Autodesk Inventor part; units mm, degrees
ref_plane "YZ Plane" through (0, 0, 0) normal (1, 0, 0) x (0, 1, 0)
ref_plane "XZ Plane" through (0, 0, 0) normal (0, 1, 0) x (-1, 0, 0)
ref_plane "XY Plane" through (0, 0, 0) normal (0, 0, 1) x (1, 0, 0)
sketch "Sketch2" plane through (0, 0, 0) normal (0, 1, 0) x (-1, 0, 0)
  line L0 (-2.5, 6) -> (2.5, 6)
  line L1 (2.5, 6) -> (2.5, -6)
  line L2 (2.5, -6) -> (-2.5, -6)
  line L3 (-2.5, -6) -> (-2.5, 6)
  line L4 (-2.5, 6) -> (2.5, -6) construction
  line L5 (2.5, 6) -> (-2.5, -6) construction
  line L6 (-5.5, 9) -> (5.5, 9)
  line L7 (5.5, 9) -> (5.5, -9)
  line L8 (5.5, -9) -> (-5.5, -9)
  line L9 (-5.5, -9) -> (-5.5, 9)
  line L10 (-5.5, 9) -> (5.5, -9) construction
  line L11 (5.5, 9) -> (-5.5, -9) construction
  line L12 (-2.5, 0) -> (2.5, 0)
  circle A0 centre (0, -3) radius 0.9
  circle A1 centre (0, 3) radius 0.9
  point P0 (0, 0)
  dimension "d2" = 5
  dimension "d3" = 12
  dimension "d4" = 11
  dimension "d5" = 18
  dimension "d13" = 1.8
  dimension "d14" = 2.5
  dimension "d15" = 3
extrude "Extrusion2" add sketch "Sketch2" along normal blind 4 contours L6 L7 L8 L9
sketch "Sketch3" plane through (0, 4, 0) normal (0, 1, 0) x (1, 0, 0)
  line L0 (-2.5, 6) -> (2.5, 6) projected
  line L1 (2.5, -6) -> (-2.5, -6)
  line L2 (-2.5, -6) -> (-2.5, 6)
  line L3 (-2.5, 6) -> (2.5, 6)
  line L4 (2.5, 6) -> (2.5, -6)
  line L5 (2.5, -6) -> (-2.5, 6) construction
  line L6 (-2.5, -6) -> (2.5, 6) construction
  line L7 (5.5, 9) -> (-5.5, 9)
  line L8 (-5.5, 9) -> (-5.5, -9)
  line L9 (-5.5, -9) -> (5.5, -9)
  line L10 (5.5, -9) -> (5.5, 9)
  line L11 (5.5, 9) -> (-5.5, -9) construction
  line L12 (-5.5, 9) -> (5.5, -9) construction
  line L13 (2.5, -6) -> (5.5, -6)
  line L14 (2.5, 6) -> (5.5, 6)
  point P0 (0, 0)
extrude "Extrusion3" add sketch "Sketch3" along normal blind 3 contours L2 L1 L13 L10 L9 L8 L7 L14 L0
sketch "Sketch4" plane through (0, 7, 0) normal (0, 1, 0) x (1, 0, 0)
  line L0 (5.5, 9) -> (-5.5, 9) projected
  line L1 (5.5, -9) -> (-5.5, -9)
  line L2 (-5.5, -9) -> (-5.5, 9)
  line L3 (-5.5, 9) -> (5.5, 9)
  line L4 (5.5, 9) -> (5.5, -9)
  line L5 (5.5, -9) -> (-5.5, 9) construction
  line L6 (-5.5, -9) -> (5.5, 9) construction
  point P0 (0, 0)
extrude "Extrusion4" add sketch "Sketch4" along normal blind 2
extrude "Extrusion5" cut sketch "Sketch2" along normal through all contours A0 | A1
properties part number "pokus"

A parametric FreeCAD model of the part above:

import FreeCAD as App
import Part
import Sketcher


def add_polygon(sketch, points):
    """Adds a closed chain of lines whose ends are joined by coincident constraints."""
    first, n = sketch.GeometryCount, len(points)
    for a, b in zip(points, points[1:] + points[:1]):
        sketch.addGeometry(Part.LineSegment(App.Vector(*a, 0), App.Vector(*b, 0)), False)
    for i in range(n):
        sketch.addConstraint(Sketcher.Constraint("Coincident", first + i, 2, first + (i + 1) % n, 1))

doc = App.newDocument("Part")
params = doc.addObject("Spreadsheet::Sheet", "Params")
for row, (alias, value) in enumerate([
    ("sketch1_width", "11 mm"),
    ("sketch1_width2", "5 mm"),
    ("sketch1_height", "18 mm"),
    ("sketch1_height2", "12 mm"),
    ("pad1_length", "4 mm"),
    ("sketch2_width", "8 mm"),
    ("sketch2_width2", "11 mm"),
    ("sketch2_height", "12 mm"),
    ("sketch2_height2", "3 mm"),
    ("pad2_length", "3 mm"),
    ("sketch3_width", "11 mm"),
    ("sketch3_height", "18 mm"),
    ("pad3_length", "2 mm"),
    ("sketch4_diameter", "1.8 mm"),
], start=1):
    params.set(f"A{row}", alias)
    params.set(f"B{row}", "=" + value)
    params.setAlias(f"B{row}", alias)

body = doc.addObject("PartDesign::Body", "Body")

# Sketch on XZ plane
sketch1 = body.newObject("Sketcher::SketchObject", "Sketch")
sketch1.AttachmentSupport = (doc.getObject("XZ_Plane"), [""])
sketch1.MapMode = "FlatFace"
add_polygon(sketch1, [(-6, 9), (6, 9), (6, -9), (-6, -9)])  # lines 0-3
add_polygon(sketch1, [(2, -6), (2, 6), (-2, 6), (-2, -6)])  # lines 4-7
sketch1.addConstraint([
    Sketcher.Constraint("Horizontal", 0),
    Sketcher.Constraint("Vertical", 1),
    Sketcher.Constraint("Horizontal", 2),
    Sketcher.Constraint("Vertical", 3),
    Sketcher.Constraint("Vertical", 4),
    Sketcher.Constraint("Horizontal", 5),
    Sketcher.Constraint("Vertical", 6),
    Sketcher.Constraint("Horizontal", 7),
    Sketcher.Constraint("Symmetric", 0, 2, 2, 2, -1, 1),
    Sketcher.Constraint("Symmetric", 4, 2, 6, 2, -1, 1),
    Sketcher.Constraint("DistanceX", 0, 1, 0, 2, 11.0),
    Sketcher.Constraint("DistanceX", 5, 2, 5, 1, 5.0),
    Sketcher.Constraint("DistanceY", 1, 2, 1, 1, 18.0),
    Sketcher.Constraint("DistanceY", 4, 1, 4, 2, 12.0),
])
sketch1.setExpression("Constraints[18]", "Params.sketch1_width")
sketch1.setExpression("Constraints[19]", "Params.sketch1_width2")
sketch1.setExpression("Constraints[20]", "Params.sketch1_height")
sketch1.setExpression("Constraints[21]", "Params.sketch1_height2")
pad1 = body.newObject("PartDesign::Pad", "Pad")
pad1.Profile = sketch1
pad1.setExpression("Length", "Params.pad1_length")
pad1.Reversed = True

# Sketch on XZ plane
sketch2 = body.newObject("Sketcher::SketchObject", "Sketch001")
sketch2.AttachmentSupport = (doc.getObject("XZ_Plane"), [""])
sketch2.MapMode = "FlatFace"
sketch2.AttachmentOffset = App.Placement(App.Vector(0, 0, -4), App.Rotation())
add_polygon(sketch2, [(-2.5, 6), (-2.5, -6), (5.5, -6), (5.5, -9), (-5.5, -9), (-5.5, 9), (5.5, 9), (5.5, 6)])  # lines 0-7
sketch2.addConstraint([
    Sketcher.Constraint("Vertical", 0),
    Sketcher.Constraint("Horizontal", 1),
    Sketcher.Constraint("Vertical", 2),
    Sketcher.Constraint("Horizontal", 3),
    Sketcher.Constraint("Vertical", 4),
    Sketcher.Constraint("Horizontal", 5),
    Sketcher.Constraint("Vertical", 6),
    Sketcher.Constraint("Horizontal", 7),
    Sketcher.Constraint("Symmetric", 2, 2, 4, 2, -1, 1),
    Sketcher.Constraint("Symmetric", 1, 2, 6, 2, -1),
    Sketcher.Constraint("DistanceX", 1, 1, 1, 2, 8.0),
    Sketcher.Constraint("DistanceX", 3, 2, 3, 1, 11.0),
    Sketcher.Constraint("DistanceY", 0, 2, 0, 1, 12.0),
    Sketcher.Constraint("DistanceY", 2, 2, 2, 1, 3.0),
])
sketch2.setExpression("Constraints[18]", "Params.sketch2_width")
sketch2.setExpression("Constraints[19]", "Params.sketch2_width2")
sketch2.setExpression("Constraints[20]", "Params.sketch2_height")
sketch2.setExpression("Constraints[21]", "Params.sketch2_height2")
pad2 = body.newObject("PartDesign::Pad", "Pad001")
pad2.Profile = sketch2
pad2.setExpression("Length", "Params.pad2_length")
pad2.Reversed = True

# Sketch on XZ plane
sketch3 = body.newObject("Sketcher::SketchObject", "Sketch002")
sketch3.AttachmentSupport = (doc.getObject("XZ_Plane"), [""])
sketch3.MapMode = "FlatFace"
sketch3.AttachmentOffset = App.Placement(App.Vector(0, 0, -7), App.Rotation())
add_polygon(sketch3, [(6, 9), (6, -9), (-6, -9), (-6, 9)])  # lines 0-3
sketch3.addConstraint([
    Sketcher.Constraint("Vertical", 0),
    Sketcher.Constraint("Horizontal", 1),
    Sketcher.Constraint("Vertical", 2),
    Sketcher.Constraint("Horizontal", 3),
    Sketcher.Constraint("Symmetric", 0, 2, 2, 2, -1, 1),
    Sketcher.Constraint("DistanceX", 1, 2, 1, 1, 11.0),
    Sketcher.Constraint("DistanceY", 0, 2, 0, 1, 18.0),
])
sketch3.setExpression("Constraints[9]", "Params.sketch3_width")
sketch3.setExpression("Constraints[10]", "Params.sketch3_height")
pad3 = body.newObject("PartDesign::Pad", "Pad002")
pad3.Profile = sketch3
pad3.setExpression("Length", "Params.pad3_length")
pad3.Reversed = True

# Sketch on XZ plane
sketch4 = body.newObject("Sketcher::SketchObject", "Sketch003")
sketch4.AttachmentSupport = (doc.getObject("XZ_Plane"), [""])
sketch4.MapMode = "FlatFace"
sketch4.addGeometry([
    Part.Circle(App.Vector(0, -3, 0), App.Vector(0, 0, 1), 0.9),
    Part.Circle(App.Vector(0, 3, 0), App.Vector(0, 0, 1), 0.9),
], False)
sketch4.addConstraint([
    Sketcher.Constraint("Equal", 0, 1),
    Sketcher.Constraint("Symmetric", 0, 3, 1, 3, -1, 1),
    Sketcher.Constraint("PointOnObject", 0, 3, -2),
    Sketcher.Constraint("Diameter", 0, 1.8),
    Sketcher.Constraint("DistanceY", 0, 3, -1, 1, 3.0),
])
sketch4.setExpression("Constraints[3]", "Params.sketch4_diameter")
pocket1 = body.newObject("PartDesign::Pocket", "Pocket")
pocket1.Profile = sketch4
pocket1.Type = "ThroughAll"

doc.recompute()
